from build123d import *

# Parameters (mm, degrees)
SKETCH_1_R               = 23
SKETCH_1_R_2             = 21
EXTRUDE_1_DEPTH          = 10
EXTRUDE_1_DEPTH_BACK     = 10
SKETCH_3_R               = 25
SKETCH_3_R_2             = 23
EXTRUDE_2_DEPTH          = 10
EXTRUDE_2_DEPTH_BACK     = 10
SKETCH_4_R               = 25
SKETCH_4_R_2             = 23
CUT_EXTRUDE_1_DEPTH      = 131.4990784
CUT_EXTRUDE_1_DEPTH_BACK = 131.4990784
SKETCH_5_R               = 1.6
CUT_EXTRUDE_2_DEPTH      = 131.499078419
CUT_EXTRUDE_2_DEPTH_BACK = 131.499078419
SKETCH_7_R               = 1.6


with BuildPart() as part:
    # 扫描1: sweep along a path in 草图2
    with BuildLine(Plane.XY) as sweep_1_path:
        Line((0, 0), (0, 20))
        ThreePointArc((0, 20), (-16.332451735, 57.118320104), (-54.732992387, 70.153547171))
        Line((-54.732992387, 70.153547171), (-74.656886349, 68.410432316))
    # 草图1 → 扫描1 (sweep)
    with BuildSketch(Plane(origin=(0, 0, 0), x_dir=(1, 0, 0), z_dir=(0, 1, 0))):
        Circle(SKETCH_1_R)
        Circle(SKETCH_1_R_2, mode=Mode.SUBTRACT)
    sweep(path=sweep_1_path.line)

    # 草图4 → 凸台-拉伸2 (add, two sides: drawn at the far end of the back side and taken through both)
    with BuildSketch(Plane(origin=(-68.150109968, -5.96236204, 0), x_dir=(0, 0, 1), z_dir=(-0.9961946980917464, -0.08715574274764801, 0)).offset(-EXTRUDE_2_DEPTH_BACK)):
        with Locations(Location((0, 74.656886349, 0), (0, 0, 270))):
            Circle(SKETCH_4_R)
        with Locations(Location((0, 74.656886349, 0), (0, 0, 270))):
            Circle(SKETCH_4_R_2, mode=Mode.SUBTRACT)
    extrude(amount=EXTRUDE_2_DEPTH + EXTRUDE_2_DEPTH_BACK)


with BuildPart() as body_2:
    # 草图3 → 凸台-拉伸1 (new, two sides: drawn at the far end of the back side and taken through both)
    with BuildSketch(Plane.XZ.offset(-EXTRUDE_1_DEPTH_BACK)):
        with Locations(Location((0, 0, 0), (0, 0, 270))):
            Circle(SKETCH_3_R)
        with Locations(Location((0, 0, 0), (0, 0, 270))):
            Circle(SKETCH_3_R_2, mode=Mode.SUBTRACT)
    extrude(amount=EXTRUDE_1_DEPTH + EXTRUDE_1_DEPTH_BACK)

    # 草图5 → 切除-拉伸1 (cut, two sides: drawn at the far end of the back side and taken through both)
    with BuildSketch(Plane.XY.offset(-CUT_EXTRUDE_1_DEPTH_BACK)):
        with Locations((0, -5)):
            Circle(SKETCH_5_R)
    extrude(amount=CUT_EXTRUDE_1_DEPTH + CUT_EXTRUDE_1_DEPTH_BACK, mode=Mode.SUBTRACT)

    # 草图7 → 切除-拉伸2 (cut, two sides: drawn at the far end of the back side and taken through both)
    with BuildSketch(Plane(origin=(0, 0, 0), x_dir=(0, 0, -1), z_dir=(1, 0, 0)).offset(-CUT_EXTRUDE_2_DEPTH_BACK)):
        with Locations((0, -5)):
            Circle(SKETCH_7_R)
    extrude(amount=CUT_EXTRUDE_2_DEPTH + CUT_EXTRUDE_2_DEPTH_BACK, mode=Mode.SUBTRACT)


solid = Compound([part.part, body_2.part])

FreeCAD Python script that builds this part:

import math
import FreeCAD as App
import Part
import Sketcher

V = App.Vector
Q = App.Units.Quantity

doc = App.newDocument("Part")
body = doc.addObject("PartDesign::Body", "Body")

sketch1 = doc.addObject("Sketcher::SketchObject", "Sketch")
body.addObject(sketch1)
sketch1.AttachmentSupport = (doc.XZ_Plane, [""])
sketch1.MapMode = "FlatFace"
sketch1.addGeometry(Part.Circle(V(0, 0, 0), V(0, 0, 1), 23), False)
sketch1.addGeometry(Part.Circle(V(0, 0, 0), V(0, 0, 1), 21), False)
sketch1.addConstraint(Sketcher.Constraint("Coincident", 0, 3, -1, 1))
sketch1.addConstraint(Sketcher.Constraint("Coincident", 1, 3, -1, 1))
sketch1.addConstraint(Sketcher.Constraint("Diameter", 0, Q("46 mm")))
sketch1.addConstraint(Sketcher.Constraint("Diameter", 1, Q("42 mm")))

sketch2 = doc.addObject("Sketcher::SketchObject", "Sketch001")
body.addObject(sketch2)
sketch2.AttachmentSupport = (doc.XY_Plane, [""])
sketch2.MapMode = "FlatFace"
sketch2.addGeometry(Part.LineSegment(V(0, 0, 0), V(0, 20, 0)), False)
sketch2.addGeometry(Part.ArcOfCircle(Part.Circle(V(-50, 20, 0), V(0, 0, 1), 50), math.radians(0), math.radians(95)), False)
sketch2.addGeometry(Part.LineSegment(V(-55, 70, 0), V(-75, 68, 0)), False)
sketch2.addConstraint(Sketcher.Constraint("Tangent", 0, 2, 1, 1))
sketch2.addConstraint(Sketcher.Constraint("Tangent", 1, 2, 2, 1))
sketch2.addConstraint(Sketcher.Constraint("Vertical", 0))
sketch2.addConstraint(Sketcher.Constraint("Coincident", 0, 1, -1, 1))
sketch2.addConstraint(Sketcher.Constraint("DistanceY", 0, 1, 0, 2, Q("20 mm")))
sketch2.addConstraint(Sketcher.Constraint("Angle", 2, Q("-175 deg")))
sketch2.addConstraint(Sketcher.Constraint("Distance", 2, Q("20 mm")))
sketch2.addConstraint(Sketcher.Constraint("Radius", 1, Q("50.345126 mm")))
doc.recompute()

additivepipe = doc.addObject("PartDesign::AdditivePipe", "AdditivePipe")
body.addObject(additivepipe)
additivepipe.Profile = sketch1
additivepipe.Spine = (sketch2, ["Edge1", "Edge2", "Edge3"])

sketch3 = doc.addObject("Sketcher::SketchObject", "Sketch002")
body.addObject(sketch3)
sketch3.Placement = App.Placement(V(-68.15011, -5.962362, 0), App.Rotation(V(0, 0, 1), V(-0.087155743, 0.996194698, 0), V(-0.996194698, -0.087155743, 0), "ZXY"))
sketch3.addGeometry(Part.Circle(V(0, 75, 0), V(0, 0, 1), 25), False)
sketch3.addGeometry(Part.Circle(V(0, 75, 0), V(0, 0, 1), 23), False)
sketch3.addConstraint(Sketcher.Constraint("Coincident", 1, 3, 0, 3))
sketch3.addConstraint(Sketcher.Constraint("PointOnObject", 0, 3, -2))
sketch3.addConstraint(Sketcher.Constraint("Diameter", 0, Q("50 mm")))
sketch3.addConstraint(Sketcher.Constraint("Diameter", 1, Q("46 mm")))
sketch3.addConstraint(Sketcher.Constraint("DistanceY", -1, 1, 0, 3, Q("74.656886 mm")))
pad1 = doc.addObject("PartDesign::Pad", "Pad")
body.addObject(pad1)
pad1.Profile = sketch3
pad1.Type = "TwoLengths"
pad1.Length = 10
pad1.Length2 = 10
body2 = doc.addObject("PartDesign::Body", "Body001")

sketch4 = doc.addObject("Sketcher::SketchObject", "Sketch003")
body2.addObject(sketch4)
sketch4.AttachmentSupport = (doc.getObject("XZ_Plane001"), [""])
sketch4.MapMode = "FlatFace"
sketch4.addGeometry(Part.Circle(V(0, 0, 0), V(0, 0, 1), 25), False)
sketch4.addGeometry(Part.Circle(V(0, 0, 0), V(0, 0, 1), 23), False)
sketch4.addConstraint(Sketcher.Constraint("Coincident", 0, 3, -1, 1))
sketch4.addConstraint(Sketcher.Constraint("Coincident", 1, 3, -1, 1))
sketch4.addConstraint(Sketcher.Constraint("Diameter", 0, Q("50 mm")))
sketch4.addConstraint(Sketcher.Constraint("Diameter", 1, Q("46 mm")))
pad2 = doc.addObject("PartDesign::Pad", "Pad001")
body2.addObject(pad2)
pad2.Profile = sketch4
pad2.Type = "TwoLengths"
pad2.Length = 10
pad2.Length2 = 10

sketch5 = doc.addObject("Sketcher::SketchObject", "Sketch004")
body2.addObject(sketch5)
sketch5.AttachmentSupport = (doc.getObject("XY_Plane001"), [""])
sketch5.MapMode = "FlatFace"
sketch5.addGeometry(Part.Circle(V(0, -5, 0), V(0, 0, 1), 1.6), False)
sketch5.addConstraint(Sketcher.Constraint("PointOnObject", 0, 3, -2))
sketch5.addConstraint(Sketcher.Constraint("Diameter", 0, Q("3.2 mm")))
sketch5.addConstraint(Sketcher.Constraint("DistanceY", 0, 3, -1, 1, Q("5 mm")))
pocket1 = doc.addObject("PartDesign::Pocket", "Pocket")
body2.addObject(pocket1)
pocket1.Profile = sketch5
pocket1.Type = "ThroughAll"
pocket1.Midplane = True

sketch6 = doc.addObject("Sketcher::SketchObject", "Sketch005")
body2.addObject(sketch6)
sketch6.AttachmentSupport = (doc.getObject("YZ_Plane001"), [""])
sketch6.MapMode = "FlatFace"
sketch6.addGeometry(Part.Circle(V(-5, 0, 0), V(0, 0, 1), 1.6), False)
sketch6.addConstraint(Sketcher.Constraint("PointOnObject", 0, 3, -1))
sketch6.addConstraint(Sketcher.Constraint("Diameter", 0, Q("3.2 mm")))
sketch6.addConstraint(Sketcher.Constraint("DistanceX", 0, 3, -1, 1, Q("5 mm")))
pocket2 = doc.addObject("PartDesign::Pocket", "Pocket001")
body2.addObject(pocket2)
pocket2.Profile = sketch6
pocket2.Type = "ThroughAll"
pocket2.Midplane = True

doc.recompute()
